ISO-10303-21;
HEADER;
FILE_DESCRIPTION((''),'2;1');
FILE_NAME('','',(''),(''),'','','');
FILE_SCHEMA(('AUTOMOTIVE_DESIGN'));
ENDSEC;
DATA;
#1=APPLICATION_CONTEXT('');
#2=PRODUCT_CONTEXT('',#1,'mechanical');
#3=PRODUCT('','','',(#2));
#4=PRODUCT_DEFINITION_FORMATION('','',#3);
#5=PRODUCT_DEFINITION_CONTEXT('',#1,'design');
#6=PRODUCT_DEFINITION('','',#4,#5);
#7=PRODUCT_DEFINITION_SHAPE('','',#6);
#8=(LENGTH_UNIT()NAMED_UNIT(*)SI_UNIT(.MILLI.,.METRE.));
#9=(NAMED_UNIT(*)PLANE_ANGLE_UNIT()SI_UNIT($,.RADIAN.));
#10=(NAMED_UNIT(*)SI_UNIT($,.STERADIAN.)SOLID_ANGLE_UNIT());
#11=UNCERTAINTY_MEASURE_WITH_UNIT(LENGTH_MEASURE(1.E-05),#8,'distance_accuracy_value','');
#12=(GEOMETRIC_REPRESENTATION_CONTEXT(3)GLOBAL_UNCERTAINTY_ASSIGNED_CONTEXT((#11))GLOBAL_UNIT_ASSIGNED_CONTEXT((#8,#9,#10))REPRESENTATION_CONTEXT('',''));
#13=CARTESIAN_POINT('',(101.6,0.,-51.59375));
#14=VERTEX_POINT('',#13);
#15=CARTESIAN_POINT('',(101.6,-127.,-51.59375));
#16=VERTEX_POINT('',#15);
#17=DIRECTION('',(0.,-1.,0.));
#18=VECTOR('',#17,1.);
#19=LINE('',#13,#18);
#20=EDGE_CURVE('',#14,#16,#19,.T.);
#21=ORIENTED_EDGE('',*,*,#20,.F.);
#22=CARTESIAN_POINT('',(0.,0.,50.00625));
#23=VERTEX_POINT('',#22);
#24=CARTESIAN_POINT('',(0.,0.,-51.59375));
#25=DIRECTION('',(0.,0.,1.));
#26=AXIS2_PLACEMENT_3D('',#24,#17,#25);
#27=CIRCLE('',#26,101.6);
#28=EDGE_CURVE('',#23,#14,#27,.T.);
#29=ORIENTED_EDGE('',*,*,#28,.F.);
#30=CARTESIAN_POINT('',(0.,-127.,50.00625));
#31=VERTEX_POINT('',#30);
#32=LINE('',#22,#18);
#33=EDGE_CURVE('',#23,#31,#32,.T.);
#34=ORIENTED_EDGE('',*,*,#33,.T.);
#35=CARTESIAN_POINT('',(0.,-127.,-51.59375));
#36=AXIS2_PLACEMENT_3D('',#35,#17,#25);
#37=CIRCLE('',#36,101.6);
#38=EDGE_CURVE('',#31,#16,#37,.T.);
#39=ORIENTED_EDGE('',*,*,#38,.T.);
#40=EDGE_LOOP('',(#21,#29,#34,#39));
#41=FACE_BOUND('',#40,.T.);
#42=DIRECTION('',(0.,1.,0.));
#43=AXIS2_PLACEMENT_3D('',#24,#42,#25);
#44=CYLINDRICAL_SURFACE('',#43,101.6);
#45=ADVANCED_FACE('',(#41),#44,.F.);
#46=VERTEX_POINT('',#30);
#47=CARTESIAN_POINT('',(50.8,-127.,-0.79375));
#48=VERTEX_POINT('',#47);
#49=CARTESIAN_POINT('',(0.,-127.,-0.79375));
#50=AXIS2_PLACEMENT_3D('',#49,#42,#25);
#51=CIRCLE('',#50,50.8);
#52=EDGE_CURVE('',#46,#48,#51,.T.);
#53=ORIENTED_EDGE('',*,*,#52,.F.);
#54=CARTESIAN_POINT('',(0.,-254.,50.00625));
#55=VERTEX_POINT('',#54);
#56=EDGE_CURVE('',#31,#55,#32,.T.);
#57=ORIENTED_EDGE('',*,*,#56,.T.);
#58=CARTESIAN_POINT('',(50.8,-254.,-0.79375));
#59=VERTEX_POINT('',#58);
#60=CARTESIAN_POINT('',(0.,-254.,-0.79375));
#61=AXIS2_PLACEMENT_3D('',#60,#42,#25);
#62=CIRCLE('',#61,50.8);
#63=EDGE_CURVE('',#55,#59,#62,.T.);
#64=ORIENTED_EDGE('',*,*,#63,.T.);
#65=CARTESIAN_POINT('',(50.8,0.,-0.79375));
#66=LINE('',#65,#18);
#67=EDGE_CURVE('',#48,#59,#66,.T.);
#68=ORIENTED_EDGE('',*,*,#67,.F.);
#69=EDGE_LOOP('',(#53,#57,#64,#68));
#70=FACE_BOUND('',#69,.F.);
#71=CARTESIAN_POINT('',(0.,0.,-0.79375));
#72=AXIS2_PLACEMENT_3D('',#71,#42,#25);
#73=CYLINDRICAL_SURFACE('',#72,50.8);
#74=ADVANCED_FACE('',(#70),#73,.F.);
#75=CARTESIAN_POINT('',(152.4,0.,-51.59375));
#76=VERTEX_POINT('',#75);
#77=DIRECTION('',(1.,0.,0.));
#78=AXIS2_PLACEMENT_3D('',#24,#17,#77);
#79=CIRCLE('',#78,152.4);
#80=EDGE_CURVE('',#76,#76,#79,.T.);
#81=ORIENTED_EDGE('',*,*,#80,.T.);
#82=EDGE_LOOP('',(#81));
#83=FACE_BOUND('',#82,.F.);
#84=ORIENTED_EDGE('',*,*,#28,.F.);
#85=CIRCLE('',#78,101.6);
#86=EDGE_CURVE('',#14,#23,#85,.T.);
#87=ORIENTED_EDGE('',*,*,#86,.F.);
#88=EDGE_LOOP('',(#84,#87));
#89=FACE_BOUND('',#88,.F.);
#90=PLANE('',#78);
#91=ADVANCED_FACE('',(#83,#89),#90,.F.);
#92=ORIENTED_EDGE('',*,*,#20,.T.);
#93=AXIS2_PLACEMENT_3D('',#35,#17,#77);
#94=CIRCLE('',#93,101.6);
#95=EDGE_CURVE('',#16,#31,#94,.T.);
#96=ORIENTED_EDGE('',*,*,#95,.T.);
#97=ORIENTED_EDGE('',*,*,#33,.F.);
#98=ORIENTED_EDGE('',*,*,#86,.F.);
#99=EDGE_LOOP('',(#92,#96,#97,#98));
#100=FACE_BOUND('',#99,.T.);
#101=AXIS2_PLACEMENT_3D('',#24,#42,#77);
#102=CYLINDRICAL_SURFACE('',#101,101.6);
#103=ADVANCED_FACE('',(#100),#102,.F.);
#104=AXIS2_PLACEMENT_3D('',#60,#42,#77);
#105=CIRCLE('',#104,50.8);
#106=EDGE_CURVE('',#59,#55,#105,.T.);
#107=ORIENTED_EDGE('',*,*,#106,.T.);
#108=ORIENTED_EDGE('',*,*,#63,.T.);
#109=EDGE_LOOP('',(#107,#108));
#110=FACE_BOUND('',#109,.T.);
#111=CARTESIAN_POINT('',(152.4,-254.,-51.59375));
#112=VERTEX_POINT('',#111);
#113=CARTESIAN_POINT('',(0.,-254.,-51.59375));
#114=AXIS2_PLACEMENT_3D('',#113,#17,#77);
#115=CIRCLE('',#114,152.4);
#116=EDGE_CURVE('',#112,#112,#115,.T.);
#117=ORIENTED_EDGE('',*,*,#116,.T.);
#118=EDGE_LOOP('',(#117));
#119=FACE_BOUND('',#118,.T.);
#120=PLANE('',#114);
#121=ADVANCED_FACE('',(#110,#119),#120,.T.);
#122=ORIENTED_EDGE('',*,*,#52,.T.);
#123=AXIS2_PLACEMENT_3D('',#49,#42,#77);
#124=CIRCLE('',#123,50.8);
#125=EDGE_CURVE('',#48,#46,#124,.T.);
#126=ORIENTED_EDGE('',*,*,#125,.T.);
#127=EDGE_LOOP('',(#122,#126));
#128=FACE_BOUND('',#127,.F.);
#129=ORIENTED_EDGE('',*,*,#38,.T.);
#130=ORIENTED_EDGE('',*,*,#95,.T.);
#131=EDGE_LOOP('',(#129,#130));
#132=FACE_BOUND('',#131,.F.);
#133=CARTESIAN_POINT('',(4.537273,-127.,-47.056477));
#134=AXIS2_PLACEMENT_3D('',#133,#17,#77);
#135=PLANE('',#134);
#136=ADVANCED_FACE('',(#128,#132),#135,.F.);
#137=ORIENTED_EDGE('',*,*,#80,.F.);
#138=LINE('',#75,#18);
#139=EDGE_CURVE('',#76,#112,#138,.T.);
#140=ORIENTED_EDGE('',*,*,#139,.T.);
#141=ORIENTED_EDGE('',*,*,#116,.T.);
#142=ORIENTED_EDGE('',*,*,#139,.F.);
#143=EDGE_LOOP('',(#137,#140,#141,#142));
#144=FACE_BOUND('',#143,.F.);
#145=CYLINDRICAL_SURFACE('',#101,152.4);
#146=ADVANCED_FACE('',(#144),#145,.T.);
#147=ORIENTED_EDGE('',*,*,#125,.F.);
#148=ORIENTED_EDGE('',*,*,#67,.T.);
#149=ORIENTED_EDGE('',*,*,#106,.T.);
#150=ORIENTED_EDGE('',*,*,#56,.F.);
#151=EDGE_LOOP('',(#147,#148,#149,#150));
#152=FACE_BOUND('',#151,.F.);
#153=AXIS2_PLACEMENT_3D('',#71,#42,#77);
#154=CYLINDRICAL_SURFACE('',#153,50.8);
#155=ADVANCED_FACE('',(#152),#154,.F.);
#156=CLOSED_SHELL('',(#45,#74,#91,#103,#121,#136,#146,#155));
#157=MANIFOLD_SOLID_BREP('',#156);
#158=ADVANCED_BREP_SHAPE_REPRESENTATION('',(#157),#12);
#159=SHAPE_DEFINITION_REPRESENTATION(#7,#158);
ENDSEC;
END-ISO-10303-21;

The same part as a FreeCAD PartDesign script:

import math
import FreeCAD as App
import Part
import Sketcher
Q = App.Units.Quantity

doc = App.newDocument("Part")
body = doc.addObject("PartDesign::Body", "Body")

# Sketch on XZ plane
sketch1 = body.newObject("Sketcher::SketchObject", "Sketch")
sketch1.AttachmentSupport = (doc.getObject("XZ_Plane"), [""])
sketch1.MapMode = "FlatFace"
sketch1.addGeometry(Part.Circle(App.Vector(0, -52, 0), App.Vector(0, 0, 1), 152), False)
sketch1.addGeometry(Part.ArcOfCircle(Part.Circle(App.Vector(0, -1, 0), App.Vector(0, 0, 1), 51), math.radians(90), math.radians(360)), False)
sketch1.addGeometry(Part.ArcOfCircle(Part.Circle(App.Vector(0, -1, 0), App.Vector(0, 0, 1), 51), math.radians(0), math.radians(90)), False)
sketch1.addConstraint(Sketcher.Constraint("Tangent", 1, 1, 2, 2))
sketch1.addConstraint(Sketcher.Constraint("Coincident", 2, 1, 1, 2))
sketch1.addConstraint(Sketcher.Constraint("PointOnObject", 0, 3, -2))
sketch1.addConstraint(Sketcher.Constraint("PointOnObject", 1, 3, -2))
sketch1.addConstraint(Sketcher.Constraint("PointOnObject", 1, 1, -2))
sketch1.addConstraint(Sketcher.Constraint("Horizontal", 1, 3, 2, 1))
sketch1.addConstraint(Sketcher.Constraint("Diameter", 0, Q("12 in")))
sketch1.addConstraint(Sketcher.Constraint("Radius", 1, Q("2 in")))
sketch1.addConstraint(Sketcher.Constraint("DistanceY", 0, 3, 1, 3, Q("2 in")))
sketch1.addConstraint(Sketcher.Constraint("DistanceY", 0, 3, -1, 1, Q("2.03125 in")))
pad1 = body.newObject("PartDesign::Pad", "Pad")
pad1.Profile = sketch1
pad1.Length = Q("10 in")

# Sketch on XZ plane
sketch2 = body.newObject("Sketcher::SketchObject", "Sketch001")
sketch2.AttachmentSupport = (doc.getObject("XZ_Plane"), [""])
sketch2.MapMode = "FlatFace"
sketch2.addGeometry(Part.ArcOfCircle(Part.Circle(App.Vector(0, -51.6, 0), App.Vector(0, 0, 1), 101.6), math.radians(0), math.radians(90)), False)
sketch2.addGeometry(Part.ArcOfCircle(Part.Circle(App.Vector(0, -51.6, 0), App.Vector(0, 0, 1), 101.6), math.radians(90), math.radians(360)), False)
sketch2.addGeometry(Part.ArcOfCircle(Part.Circle(App.Vector(0, -0.8, 0), App.Vector(0, 0, 1), 1.6), math.radians(0), math.radians(90)), False)
sketch2.addGeometry(Part.ArcOfCircle(Part.Circle(App.Vector(0, -0.8, 0), App.Vector(0, 0, 1), 1.6), math.radians(90), math.radians(360)), False)
sketch2.addConstraint(Sketcher.Constraint("Tangent", 0, 1, 1, 2))
sketch2.addConstraint(Sketcher.Constraint("Coincident", 1, 1, 0, 2))
sketch2.addConstraint(Sketcher.Constraint("Tangent", 2, 1, 3, 2))
sketch2.addConstraint(Sketcher.Constraint("Coincident", 3, 1, 2, 2))
sketch2.addConstraint(Sketcher.Constraint("PointOnObject", 0, 3, -2))
sketch2.addConstraint(Sketcher.Constraint("PointOnObject", 2, 3, -2))
sketch2.addConstraint(Sketcher.Constraint("PointOnObject", 1, 1, -2))
sketch2.addConstraint(Sketcher.Constraint("PointOnObject", 3, 1, -2))
sketch2.addConstraint(Sketcher.Constraint("Horizontal", 1, 3, 0, 1))
sketch2.addConstraint(Sketcher.Constraint("Horizontal", 3, 3, 2, 1))
sketch2.addConstraint(Sketcher.Constraint("Radius", 0, Q("4 in")))
sketch2.addConstraint(Sketcher.Constraint("Radius", 2, Q("0.0625 in")))
sketch2.addConstraint(Sketcher.Constraint("DistanceY", 0, 3, 2, 3, Q("2 in")))
sketch2.addConstraint(Sketcher.Constraint("DistanceY", 0, 3, -1, 1, Q("2.03125 in")))
pocket1 = body.newObject("PartDesign::Pocket", "Pocket")
pocket1.Profile = sketch2
pocket1.Length = Q("5 in")
pocket1.Reversed = True

doc.recompute()
